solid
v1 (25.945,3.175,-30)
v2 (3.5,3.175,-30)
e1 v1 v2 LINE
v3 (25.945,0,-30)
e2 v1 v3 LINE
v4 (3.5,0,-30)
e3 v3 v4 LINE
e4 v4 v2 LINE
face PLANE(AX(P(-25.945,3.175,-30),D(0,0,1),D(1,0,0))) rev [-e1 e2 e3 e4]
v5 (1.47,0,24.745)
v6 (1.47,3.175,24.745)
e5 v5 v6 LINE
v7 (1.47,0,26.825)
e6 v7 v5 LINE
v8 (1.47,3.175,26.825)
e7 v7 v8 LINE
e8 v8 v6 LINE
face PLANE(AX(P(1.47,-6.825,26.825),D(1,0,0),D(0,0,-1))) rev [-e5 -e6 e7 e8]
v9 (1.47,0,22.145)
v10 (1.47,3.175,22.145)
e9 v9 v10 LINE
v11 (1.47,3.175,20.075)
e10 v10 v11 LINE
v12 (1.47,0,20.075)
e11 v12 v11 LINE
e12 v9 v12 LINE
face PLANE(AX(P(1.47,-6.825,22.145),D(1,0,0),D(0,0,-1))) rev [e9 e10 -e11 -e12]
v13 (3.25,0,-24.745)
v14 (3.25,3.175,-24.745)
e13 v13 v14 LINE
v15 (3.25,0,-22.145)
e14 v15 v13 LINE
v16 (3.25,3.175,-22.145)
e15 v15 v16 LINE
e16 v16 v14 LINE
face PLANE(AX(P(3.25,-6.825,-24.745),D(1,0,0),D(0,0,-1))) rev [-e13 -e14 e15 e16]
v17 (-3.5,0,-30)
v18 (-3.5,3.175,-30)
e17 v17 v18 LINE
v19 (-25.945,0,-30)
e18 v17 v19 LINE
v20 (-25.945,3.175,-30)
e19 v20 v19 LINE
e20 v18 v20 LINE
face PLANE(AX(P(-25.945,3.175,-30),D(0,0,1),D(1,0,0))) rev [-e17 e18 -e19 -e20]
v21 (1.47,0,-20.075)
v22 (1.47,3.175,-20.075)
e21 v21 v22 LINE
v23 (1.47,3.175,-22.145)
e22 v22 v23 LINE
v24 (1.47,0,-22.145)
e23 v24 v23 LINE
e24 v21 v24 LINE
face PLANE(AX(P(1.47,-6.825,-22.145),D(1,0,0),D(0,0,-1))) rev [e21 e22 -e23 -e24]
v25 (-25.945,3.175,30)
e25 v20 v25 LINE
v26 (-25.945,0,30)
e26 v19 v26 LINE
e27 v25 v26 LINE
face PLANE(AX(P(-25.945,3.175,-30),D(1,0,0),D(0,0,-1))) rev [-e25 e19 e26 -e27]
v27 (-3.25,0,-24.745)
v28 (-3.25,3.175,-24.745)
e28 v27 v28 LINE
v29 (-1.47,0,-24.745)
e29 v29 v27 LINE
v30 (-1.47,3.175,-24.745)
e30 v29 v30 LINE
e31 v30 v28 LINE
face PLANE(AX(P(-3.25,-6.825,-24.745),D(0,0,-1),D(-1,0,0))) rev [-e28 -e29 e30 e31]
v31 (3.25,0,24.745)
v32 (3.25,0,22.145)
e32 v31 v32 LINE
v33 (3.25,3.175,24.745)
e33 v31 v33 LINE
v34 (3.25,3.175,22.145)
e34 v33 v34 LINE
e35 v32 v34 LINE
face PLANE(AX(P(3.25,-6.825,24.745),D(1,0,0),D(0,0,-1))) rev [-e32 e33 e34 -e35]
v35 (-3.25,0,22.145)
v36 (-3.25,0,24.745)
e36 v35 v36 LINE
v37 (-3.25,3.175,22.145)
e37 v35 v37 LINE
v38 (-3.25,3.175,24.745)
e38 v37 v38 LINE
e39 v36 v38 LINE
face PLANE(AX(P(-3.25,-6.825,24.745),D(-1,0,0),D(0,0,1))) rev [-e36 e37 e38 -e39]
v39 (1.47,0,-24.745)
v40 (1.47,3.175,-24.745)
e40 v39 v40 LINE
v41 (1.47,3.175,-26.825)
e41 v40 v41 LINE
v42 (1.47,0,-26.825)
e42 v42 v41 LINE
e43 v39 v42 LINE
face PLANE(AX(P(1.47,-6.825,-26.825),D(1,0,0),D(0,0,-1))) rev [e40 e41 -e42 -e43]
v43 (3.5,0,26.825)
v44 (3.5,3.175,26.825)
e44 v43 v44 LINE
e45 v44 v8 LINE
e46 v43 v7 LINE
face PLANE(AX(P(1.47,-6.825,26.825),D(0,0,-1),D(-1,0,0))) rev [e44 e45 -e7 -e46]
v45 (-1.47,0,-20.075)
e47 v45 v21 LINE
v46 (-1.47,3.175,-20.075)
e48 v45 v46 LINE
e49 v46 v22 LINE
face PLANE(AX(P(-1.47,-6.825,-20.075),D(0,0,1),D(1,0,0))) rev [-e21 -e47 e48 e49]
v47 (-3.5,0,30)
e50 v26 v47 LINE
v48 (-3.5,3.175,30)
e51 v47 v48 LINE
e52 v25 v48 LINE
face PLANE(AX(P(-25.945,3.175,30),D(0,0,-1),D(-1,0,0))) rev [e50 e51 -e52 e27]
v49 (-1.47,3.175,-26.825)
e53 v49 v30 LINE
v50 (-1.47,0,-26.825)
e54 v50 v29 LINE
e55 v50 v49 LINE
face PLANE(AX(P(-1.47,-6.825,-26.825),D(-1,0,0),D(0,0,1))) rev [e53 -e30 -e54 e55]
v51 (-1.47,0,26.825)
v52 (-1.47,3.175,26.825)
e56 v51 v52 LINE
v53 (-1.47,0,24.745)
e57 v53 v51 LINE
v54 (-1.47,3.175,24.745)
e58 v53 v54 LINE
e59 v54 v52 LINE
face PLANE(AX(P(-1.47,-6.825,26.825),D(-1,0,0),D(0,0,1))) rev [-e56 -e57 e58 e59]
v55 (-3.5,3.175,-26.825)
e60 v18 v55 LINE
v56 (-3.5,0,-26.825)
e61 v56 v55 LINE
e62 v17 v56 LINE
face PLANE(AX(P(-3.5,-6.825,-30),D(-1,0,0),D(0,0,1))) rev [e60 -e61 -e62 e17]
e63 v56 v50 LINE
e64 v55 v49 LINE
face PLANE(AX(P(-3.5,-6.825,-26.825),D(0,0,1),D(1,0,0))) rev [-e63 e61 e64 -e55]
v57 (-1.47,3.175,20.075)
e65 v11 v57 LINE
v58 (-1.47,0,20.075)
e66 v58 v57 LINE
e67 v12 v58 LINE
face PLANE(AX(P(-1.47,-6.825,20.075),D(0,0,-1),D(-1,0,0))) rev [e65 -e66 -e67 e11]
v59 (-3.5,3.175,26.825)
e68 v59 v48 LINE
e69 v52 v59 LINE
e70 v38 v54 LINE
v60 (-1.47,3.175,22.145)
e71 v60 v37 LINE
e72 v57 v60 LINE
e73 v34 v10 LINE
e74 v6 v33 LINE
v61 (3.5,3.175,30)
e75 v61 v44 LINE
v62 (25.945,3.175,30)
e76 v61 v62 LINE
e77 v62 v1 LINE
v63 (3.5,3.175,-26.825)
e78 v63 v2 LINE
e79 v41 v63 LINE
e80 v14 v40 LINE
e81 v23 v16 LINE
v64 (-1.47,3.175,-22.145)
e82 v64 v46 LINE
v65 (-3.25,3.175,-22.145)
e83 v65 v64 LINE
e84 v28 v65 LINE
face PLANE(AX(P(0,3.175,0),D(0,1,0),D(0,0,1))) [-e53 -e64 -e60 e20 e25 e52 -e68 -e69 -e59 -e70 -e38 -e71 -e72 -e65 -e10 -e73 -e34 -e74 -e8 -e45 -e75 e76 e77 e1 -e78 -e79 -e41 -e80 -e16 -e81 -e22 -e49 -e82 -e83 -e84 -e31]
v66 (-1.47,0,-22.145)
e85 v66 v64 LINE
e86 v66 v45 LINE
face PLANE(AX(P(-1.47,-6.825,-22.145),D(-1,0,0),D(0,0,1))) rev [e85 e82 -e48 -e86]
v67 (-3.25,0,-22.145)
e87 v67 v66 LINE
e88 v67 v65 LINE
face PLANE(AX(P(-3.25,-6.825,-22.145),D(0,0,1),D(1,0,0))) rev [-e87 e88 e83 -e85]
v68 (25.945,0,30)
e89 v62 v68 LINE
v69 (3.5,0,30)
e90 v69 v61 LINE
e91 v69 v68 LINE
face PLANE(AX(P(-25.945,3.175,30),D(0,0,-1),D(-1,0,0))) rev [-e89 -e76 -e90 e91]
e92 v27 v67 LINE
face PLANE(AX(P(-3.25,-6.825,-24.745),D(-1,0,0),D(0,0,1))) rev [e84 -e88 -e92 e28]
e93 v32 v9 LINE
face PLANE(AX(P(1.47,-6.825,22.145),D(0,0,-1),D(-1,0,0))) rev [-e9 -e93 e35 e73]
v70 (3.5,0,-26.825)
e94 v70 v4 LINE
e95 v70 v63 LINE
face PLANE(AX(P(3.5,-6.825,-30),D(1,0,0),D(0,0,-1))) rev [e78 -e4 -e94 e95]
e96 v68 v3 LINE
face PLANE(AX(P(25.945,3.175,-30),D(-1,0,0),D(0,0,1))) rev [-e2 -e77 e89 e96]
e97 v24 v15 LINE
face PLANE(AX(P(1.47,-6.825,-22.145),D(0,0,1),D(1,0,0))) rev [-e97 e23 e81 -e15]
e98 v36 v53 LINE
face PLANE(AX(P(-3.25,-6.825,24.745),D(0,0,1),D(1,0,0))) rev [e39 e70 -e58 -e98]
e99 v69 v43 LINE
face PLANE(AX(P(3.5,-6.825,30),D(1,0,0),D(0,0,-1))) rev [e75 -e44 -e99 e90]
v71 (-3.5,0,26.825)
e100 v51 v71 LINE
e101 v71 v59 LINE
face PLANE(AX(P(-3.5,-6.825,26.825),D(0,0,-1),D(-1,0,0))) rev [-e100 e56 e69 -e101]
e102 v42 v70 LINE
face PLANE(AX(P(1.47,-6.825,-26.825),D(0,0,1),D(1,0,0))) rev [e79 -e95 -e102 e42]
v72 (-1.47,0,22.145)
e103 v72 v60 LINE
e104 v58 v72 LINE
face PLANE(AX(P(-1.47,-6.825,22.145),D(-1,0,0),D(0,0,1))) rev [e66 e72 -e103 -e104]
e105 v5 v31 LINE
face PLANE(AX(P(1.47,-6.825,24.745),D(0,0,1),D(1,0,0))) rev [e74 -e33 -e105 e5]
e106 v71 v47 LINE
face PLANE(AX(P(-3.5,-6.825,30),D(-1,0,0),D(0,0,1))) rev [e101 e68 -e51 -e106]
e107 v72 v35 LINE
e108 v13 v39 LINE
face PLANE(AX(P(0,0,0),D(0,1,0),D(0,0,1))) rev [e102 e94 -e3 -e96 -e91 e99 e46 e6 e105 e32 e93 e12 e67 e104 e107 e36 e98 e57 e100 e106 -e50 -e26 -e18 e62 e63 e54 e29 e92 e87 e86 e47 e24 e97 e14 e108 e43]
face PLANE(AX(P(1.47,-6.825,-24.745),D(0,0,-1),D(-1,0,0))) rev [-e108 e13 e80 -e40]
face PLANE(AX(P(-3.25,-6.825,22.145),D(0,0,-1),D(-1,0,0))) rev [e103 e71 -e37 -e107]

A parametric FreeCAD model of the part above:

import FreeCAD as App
import Part
import Sketcher


def add_polygon(sketch, points):
    """Adds a closed chain of lines whose ends are joined by coincident constraints."""
    first, n = sketch.GeometryCount, len(points)
    for a, b in zip(points, points[1:] + points[:1]):
        sketch.addGeometry(Part.LineSegment(App.Vector(*a, 0), App.Vector(*b, 0)), False)
    for i in range(n):
        sketch.addConstraint(Sketcher.Constraint("Coincident", first + i, 2, first + (i + 1) % n, 1))

doc = App.newDocument("Part")
body = doc.addObject("PartDesign::Body", "Body")

# Sketch on XZ plane
sketch1 = body.newObject("Sketcher::SketchObject", "Sketch")
sketch1.AttachmentSupport = (doc.getObject("XZ_Plane"), [""])
sketch1.MapMode = "FlatFace"
add_polygon(sketch1, [(-26, -30), (-26, 30), (26, 30), (26, -30)])  # lines 0-3
sketch1.addConstraint([
    Sketcher.Constraint("Vertical", 0),
    Sketcher.Constraint("Horizontal", 1),
    Sketcher.Constraint("Vertical", 2),
    Sketcher.Constraint("Horizontal", 3),
    Sketcher.Constraint("Symmetric", 0, 2, 2, 2, -1, 1),
    Sketcher.Constraint("DistanceY", 0, 1, 0, 2, 60.0),
    Sketcher.Constraint("DistanceX", 1, 1, 1, 2, 51.89),
])
pad1 = body.newObject("PartDesign::Pad", "Pad")
pad1.Profile = sketch1
pad1.Length = 3.175
pad1.Reversed = True

# Sketch on XZ plane
sketch2 = body.newObject("Sketcher::SketchObject", "Sketch001")
sketch2.AttachmentSupport = (doc.getObject("XZ_Plane"), [""])
sketch2.MapMode = "FlatFace"
sketch2.AttachmentOffset = App.Placement(App.Vector(0, 0, -3.175), App.Rotation())
add_polygon(sketch2, [(3.5, -30), (-3.5, -30), (-3.5, -26.8), (-1.5, -26.8), (-1.5, -24.7), (-3.2, -24.7), (-3.2, -22.1), (-1.5, -22.1), (-1.5, -20.1), (1.5, -20.1), (1.5, -22.1), (3.2, -22.1), (3.2, -24.7), (1.5, -24.7), (1.5, -26.8), (3.5, -26.8)])  # lines 0-15
add_polygon(sketch2, [(1.5, 26.8), (1.5, 24.7), (3.2, 24.7), (3.2, 22.1), (1.5, 22.1), (1.5, 20.1), (-1.5, 20.1), (-1.5, 22.1), (-3.2, 22.1), (-3.2, 24.7), (-1.5, 24.7), (-1.5, 26.8), (-3.5, 26.8), (-3.5, 30), (3.5, 30), (3.5, 26.8)])  # lines 16-31
sketch2.addConstraint([
    Sketcher.Constraint("Horizontal", 0),
    Sketcher.Constraint("Vertical", 1),
    Sketcher.Constraint("Horizontal", 2),
    Sketcher.Constraint("Vertical", 3),
    Sketcher.Constraint("Horizontal", 4),
    Sketcher.Constraint("Vertical", 5),
    Sketcher.Constraint("Horizontal", 6),
    Sketcher.Constraint("Vertical", 7),
    Sketcher.Constraint("Horizontal", 8),
    Sketcher.Constraint("Vertical", 9),
    Sketcher.Constraint("Horizontal", 10),
    Sketcher.Constraint("Vertical", 11),
    Sketcher.Constraint("Horizontal", 12),
    Sketcher.Constraint("Vertical", 13),
    Sketcher.Constraint("Horizontal", 14),
    Sketcher.Constraint("Vertical", 15),
    Sketcher.Constraint("Vertical", 16),
    Sketcher.Constraint("Horizontal", 17),
    Sketcher.Constraint("Vertical", 18),
    Sketcher.Constraint("Horizontal", 19),
    Sketcher.Constraint("Vertical", 20),
    Sketcher.Constraint("Horizontal", 21),
    Sketcher.Constraint("Vertical", 22),
    Sketcher.Constraint("Horizontal", 23),
    Sketcher.Constraint("Vertical", 24),
    Sketcher.Constraint("Horizontal", 25),
    Sketcher.Constraint("Vertical", 26),
    Sketcher.Constraint("Horizontal", 27),
    Sketcher.Constraint("Vertical", 28),
    Sketcher.Constraint("Horizontal", 29),
    Sketcher.Constraint("Vertical", 30),
    Sketcher.Constraint("Horizontal", 31),
    Sketcher.Constraint("Symmetric", 3, 2, 16, 2, -1, 1),
    Sketcher.Constraint("Symmetric", 5, 2, 18, 2, -1, 1),
    Sketcher.Constraint("Symmetric", 7, 2, 20, 2, -1, 1),
    Sketcher.Constraint("Symmetric", 9, 2, 22, 2, -1, 1),
    Sketcher.Constraint("Symmetric", 11, 2, 24, 2, -1, 1),
    Sketcher.Constraint("Symmetric", 13, 2, 26, 2, -1, 1),
    Sketcher.Constraint("Symmetric", 15, 2, 28, 2, -1, 1),
    Sketcher.Constraint("Symmetric", 1, 2, 30, 2, -1, 1),
    Sketcher.Constraint("Symmetric", 6, 2, 9, 2, -2),
    Sketcher.Constraint("Symmetric", 4, 2, 11, 2, -2),
    Sketcher.Constraint("Symmetric", 2, 2, 13, 2, -2),
    Sketcher.Constraint("Vertical", 3, 2, 6, 2),
    Sketcher.Constraint("Vertical", 1, 2, 27, 2),
    Sketcher.Constraint("DistanceX", 0, 2, 0, 1, 7.0),
    Sketcher.Constraint("DistanceY", 5, 1, 5, 2, 2.6),
    Sketcher.Constraint("DistanceY", 0, 2, -1, 1, 30.0),
    Sketcher.Constraint("DistanceX", 2, 1, 2, 2, 2.03),
    Sketcher.Constraint("DistanceX", 4, 2, 4, 1, 1.78),
    Sketcher.Constraint("DistanceY", 3, 1, 3, 2, 2.08),
    Sketcher.Constraint("DistanceY", 7, 1, 7, 2, 2.07),
    Sketcher.Constraint("DistanceY", 1, 1, 1, 2, 3.175),
])
pocket1 = body.newObject("PartDesign::Pocket", "Pocket")
pocket1.Profile = sketch2
pocket1.Length = 10
pocket1.Reversed = True

doc.recompute()
